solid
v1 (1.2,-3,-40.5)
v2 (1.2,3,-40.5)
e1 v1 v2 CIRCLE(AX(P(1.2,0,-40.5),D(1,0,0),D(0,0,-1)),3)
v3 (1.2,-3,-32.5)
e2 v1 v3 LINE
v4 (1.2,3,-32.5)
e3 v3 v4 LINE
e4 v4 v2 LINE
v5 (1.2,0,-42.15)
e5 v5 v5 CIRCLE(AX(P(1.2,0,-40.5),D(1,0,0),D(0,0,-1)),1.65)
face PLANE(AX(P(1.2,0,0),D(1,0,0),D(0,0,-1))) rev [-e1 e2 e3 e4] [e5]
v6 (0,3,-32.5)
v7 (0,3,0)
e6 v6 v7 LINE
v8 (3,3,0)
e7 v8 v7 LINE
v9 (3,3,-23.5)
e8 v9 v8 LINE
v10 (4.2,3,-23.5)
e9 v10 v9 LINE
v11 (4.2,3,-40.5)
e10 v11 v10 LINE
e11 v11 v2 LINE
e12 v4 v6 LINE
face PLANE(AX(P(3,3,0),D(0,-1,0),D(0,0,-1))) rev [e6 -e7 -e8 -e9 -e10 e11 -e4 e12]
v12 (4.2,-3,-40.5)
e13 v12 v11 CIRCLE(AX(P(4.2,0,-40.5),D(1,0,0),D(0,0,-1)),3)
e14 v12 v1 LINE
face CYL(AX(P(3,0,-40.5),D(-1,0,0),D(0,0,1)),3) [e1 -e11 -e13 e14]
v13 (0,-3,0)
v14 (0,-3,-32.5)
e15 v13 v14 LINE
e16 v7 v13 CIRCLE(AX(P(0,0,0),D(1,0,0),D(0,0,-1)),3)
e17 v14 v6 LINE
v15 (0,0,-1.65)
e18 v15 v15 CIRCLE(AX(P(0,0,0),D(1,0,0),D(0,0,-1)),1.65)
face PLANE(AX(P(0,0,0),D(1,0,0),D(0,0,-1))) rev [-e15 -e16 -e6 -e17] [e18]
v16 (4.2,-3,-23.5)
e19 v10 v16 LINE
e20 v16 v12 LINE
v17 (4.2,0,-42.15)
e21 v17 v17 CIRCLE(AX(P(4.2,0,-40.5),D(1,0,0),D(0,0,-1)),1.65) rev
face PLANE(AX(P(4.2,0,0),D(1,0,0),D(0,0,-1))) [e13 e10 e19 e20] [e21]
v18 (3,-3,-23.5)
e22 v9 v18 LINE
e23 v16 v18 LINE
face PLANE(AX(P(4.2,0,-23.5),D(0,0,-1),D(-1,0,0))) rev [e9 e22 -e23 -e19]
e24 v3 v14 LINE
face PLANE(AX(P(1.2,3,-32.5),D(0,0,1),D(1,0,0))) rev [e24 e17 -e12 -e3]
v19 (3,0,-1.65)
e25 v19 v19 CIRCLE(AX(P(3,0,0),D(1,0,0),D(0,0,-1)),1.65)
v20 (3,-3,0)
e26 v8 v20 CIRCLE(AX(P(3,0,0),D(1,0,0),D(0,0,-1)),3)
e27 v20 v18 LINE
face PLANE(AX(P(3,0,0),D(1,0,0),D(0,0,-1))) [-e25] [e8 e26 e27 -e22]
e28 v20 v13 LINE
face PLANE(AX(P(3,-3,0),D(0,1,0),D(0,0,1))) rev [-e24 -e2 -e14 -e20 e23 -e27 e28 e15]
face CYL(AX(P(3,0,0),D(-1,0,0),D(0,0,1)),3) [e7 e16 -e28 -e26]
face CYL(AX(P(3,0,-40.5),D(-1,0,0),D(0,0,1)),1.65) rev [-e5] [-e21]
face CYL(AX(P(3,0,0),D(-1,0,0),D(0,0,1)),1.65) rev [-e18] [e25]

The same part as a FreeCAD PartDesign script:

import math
import FreeCAD as App
import Part
import Sketcher

V = App.Vector
Q = App.Units.Quantity


def add_polygon(sketch, points):
    """Adds a closed chain of lines whose ends are joined by coincident constraints."""
    first, n = sketch.GeometryCount, len(points)
    for a, b in zip(points, points[1:] + points[:1]):
        sketch.addGeometry(Part.LineSegment(App.Vector(*a, 0), App.Vector(*b, 0)), False)
    for i in range(n):
        sketch.addConstraint(Sketcher.Constraint("Coincident", first + i, 2, first + (i + 1) % n, 1))

doc = App.newDocument("Part")
body = doc.addObject("PartDesign::Body", "Body")

# Sketch on YZ plane
sketch1 = body.newObject("Sketcher::SketchObject", "Sketch")
sketch1.AttachmentSupport = (doc.getObject("YZ_Plane"), [""])
sketch1.MapMode = "FlatFace"
sketch1.addGeometry(Part.LineSegment(V(3, -40.5, 0), V(3, 0, 0)), False)
sketch1.addGeometry(Part.ArcOfCircle(Part.Circle(V(0, 0, 0), V(0, 0, 1), 3), math.radians(0), math.radians(180)), False)
sketch1.addGeometry(Part.LineSegment(V(-3, 0, 0), V(-3, -40.5, 0)), False)
sketch1.addGeometry(Part.ArcOfCircle(Part.Circle(V(0, -40.5, 0), V(0, 0, 1), 3), math.radians(180), math.radians(360)), False)
sketch1.addGeometry(Part.Circle(V(0, -40.5, 0), V(0, 0, 1), 1.6), False)
sketch1.addGeometry(Part.Circle(V(0, 0, 0), V(0, 0, 1), 1.6), False)
sketch1.addConstraint(Sketcher.Constraint("Tangent", 0, 2, 1, 1))
sketch1.addConstraint(Sketcher.Constraint("Tangent", 1, 2, 2, 1))
sketch1.addConstraint(Sketcher.Constraint("Tangent", 2, 2, 3, 1))
sketch1.addConstraint(Sketcher.Constraint("Tangent", 3, 2, 0, 1))
sketch1.addConstraint(Sketcher.Constraint("Vertical", 0))
sketch1.addConstraint(Sketcher.Constraint("Vertical", 2))
sketch1.addConstraint(Sketcher.Constraint("Coincident", 1, 3, -1, 1))
sketch1.addConstraint(Sketcher.Constraint("Coincident", 5, 3, -1, 1))
sketch1.addConstraint(Sketcher.Constraint("Coincident", 4, 3, 3, 3))
sketch1.addConstraint(Sketcher.Constraint("Equal", 4, 5))
sketch1.addConstraint(Sketcher.Constraint("Radius", 1, Q("3 mm")))
sketch1.addConstraint(Sketcher.Constraint("Diameter", 4, Q("3.3 mm")))
sketch1.addConstraint(Sketcher.Constraint("DistanceY", 0, 1, 0, 2, Q("40.5 mm")))
pad1 = body.newObject("PartDesign::Pad", "Pad")
pad1.Profile = sketch1
pad1.Length = 3

# Sketch on YZ plane
sketch2 = body.newObject("Sketcher::SketchObject", "Sketch001")
sketch2.AttachmentSupport = (doc.getObject("YZ_Plane"), [""])
sketch2.MapMode = "FlatFace"
add_polygon(sketch2, [(3, -44), (-3, -44), (-3, -32), (3, -32)])  # lines 0-3
sketch2.addConstraint(Sketcher.Constraint("Horizontal", 0))
sketch2.addConstraint(Sketcher.Constraint("Vertical", 1))
sketch2.addConstraint(Sketcher.Constraint("Horizontal", 2))
sketch2.addConstraint(Sketcher.Constraint("Vertical", 3))
sketch2.addConstraint(Sketcher.Constraint("DistanceX", 0, 2, 0, 1, Q("6 mm")))
sketch2.addConstraint(Sketcher.Constraint("DistanceY", 1, 1, 1, 2, Q("11 mm")))
sketch2.addConstraint(Sketcher.Constraint("DistanceX", 0, 2, -1, 1, Q("3 mm")))
sketch2.addConstraint(Sketcher.Constraint("DistanceY", 0, 2, -1, 1, Q("43.5 mm")))
pocket1 = body.newObject("PartDesign::Pocket", "Pocket")
pocket1.Profile = sketch2
pocket1.Length = 1.2
pocket1.Reversed = True

# Sketch on YZ plane
sketch3 = body.newObject("Sketcher::SketchObject", "Sketch002")
sketch3.AttachmentSupport = (doc.getObject("YZ_Plane"), [""])
sketch3.MapMode = "FlatFace"
sketch3.AttachmentOffset = App.Placement(V(0, 0, 3), App.Rotation())
sketch3.addGeometry(Part.LineSegment(V(3, -40.5, 0), V(3, -23.5, 0)), False)
sketch3.addGeometry(Part.LineSegment(V(3, -23.5, 0), V(-3, -23.5, 0)), False)
sketch3.addGeometry(Part.LineSegment(V(-3, -23.5, 0), V(-3, -40.5, 0)), False)
sketch3.addGeometry(Part.ArcOfCircle(Part.Circle(V(0, -40.5, 0), V(0, 0, 1), 3), math.radians(180), math.radians(360)), False)
sketch3.addGeometry(Part.Circle(V(0, -40.5, 0), V(0, 0, 1), 1.6), False)
sketch3.addConstraint(Sketcher.Constraint("Coincident", 0, 2, 1, 1))
sketch3.addConstraint(Sketcher.Constraint("Coincident", 1, 2, 2, 1))
sketch3.addConstraint(Sketcher.Constraint("Tangent", 2, 2, 3, 1))
sketch3.addConstraint(Sketcher.Constraint("Tangent", 3, 2, 0, 1))
sketch3.addConstraint(Sketcher.Constraint("Vertical", 0))
sketch3.addConstraint(Sketcher.Constraint("Horizontal", 1))
sketch3.addConstraint(Sketcher.Constraint("Vertical", 2))
sketch3.addConstraint(Sketcher.Constraint("Coincident", 4, 3, 3, 3))
sketch3.addConstraint(Sketcher.Constraint("PointOnObject", 3, 3, -2))
sketch3.addConstraint(Sketcher.Constraint("Radius", 3, Q("3 mm")))
sketch3.addConstraint(Sketcher.Constraint("Diameter", 4, Q("3.3 mm")))
sketch3.addConstraint(Sketcher.Constraint("DistanceY", 0, 1, 0, 2, Q("17 mm")))
sketch3.addConstraint(Sketcher.Constraint("DistanceY", 3, 3, -1, 1, Q("40.5 mm")))
pad2 = body.newObject("PartDesign::Pad", "Pad001")
pad2.Profile = sketch3
pad2.Length = 1.2

doc.recompute()
